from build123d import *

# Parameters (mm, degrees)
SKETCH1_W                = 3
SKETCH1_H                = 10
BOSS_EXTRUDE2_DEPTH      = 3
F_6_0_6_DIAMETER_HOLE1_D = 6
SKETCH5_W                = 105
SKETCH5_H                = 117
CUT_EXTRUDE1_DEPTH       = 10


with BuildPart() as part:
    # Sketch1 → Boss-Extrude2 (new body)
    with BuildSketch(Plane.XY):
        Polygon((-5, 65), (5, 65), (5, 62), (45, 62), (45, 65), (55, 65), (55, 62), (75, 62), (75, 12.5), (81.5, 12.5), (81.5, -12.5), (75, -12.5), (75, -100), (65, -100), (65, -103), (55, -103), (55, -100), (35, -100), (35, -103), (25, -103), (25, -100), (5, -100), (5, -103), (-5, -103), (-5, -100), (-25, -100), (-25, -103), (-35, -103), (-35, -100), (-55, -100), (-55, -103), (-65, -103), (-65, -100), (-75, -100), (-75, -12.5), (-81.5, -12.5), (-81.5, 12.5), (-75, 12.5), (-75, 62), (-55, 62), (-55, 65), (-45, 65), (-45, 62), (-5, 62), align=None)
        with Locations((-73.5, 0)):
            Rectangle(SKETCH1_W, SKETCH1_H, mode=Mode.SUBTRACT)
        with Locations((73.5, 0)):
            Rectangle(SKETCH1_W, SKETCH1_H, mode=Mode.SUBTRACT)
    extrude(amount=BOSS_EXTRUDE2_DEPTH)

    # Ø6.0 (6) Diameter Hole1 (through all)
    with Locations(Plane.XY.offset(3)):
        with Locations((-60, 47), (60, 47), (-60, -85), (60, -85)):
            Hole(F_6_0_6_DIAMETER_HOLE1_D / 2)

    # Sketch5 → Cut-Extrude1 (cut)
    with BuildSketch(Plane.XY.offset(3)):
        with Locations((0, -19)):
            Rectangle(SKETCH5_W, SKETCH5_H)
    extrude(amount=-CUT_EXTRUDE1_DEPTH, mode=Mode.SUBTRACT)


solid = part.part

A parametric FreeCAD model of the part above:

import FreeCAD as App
import Part
import Sketcher

V = App.Vector

doc = App.newDocument("Part")
body = doc.addObject("PartDesign::Body", "Body")

# Sketch on XY plane
sketch1 = body.newObject("Sketcher::SketchObject", "Sketch")
sketch1.AttachmentSupport = (doc.getObject("XY_Plane"), [""])
sketch1.MapMode = "FlatFace"
sketch1.addGeometry([
    Part.LineSegment(V(5, 65, 0), V(-5, 65, 0)),  # 0
    Part.LineSegment(V(-5, 65, 0), V(-5, 62, 0)),  # 1
    Part.LineSegment(V(-5, 62, 0), V(-45, 62, 0)),  # 2
    Part.LineSegment(V(-45, 62, 0), V(-45, 65, 0)),  # 3
    Part.LineSegment(V(-45, 65, 0), V(-55, 65, 0)),  # 4
    Part.LineSegment(V(-55, 65, 0), V(-55, 62, 0)),  # 5
    Part.LineSegment(V(-55, 62, 0), V(-75, 62, 0)),  # 6
    Part.LineSegment(V(-75, 62, 0), V(-75, 12.5, 0)),  # 7
    Part.LineSegment(V(-75, 12.5, 0), V(-81.5, 12.5, 0)),  # 8
    Part.LineSegment(V(-81.5, 12.5, 0), V(-81.5, -12.5, 0)),  # 9
    Part.LineSegment(V(-81.5, -12.5, 0), V(-75, -12.5, 0)),  # 10
    Part.LineSegment(V(-75, -12.5, 0), V(-75, -100, 0)),  # 11
    Part.LineSegment(V(-75, -100, 0), V(-65, -100, 0)),  # 12
    Part.LineSegment(V(-65, -100, 0), V(-65, -103, 0)),  # 13
    Part.LineSegment(V(-65, -103, 0), V(-55, -103, 0)),  # 14
    Part.LineSegment(V(-55, -103, 0), V(-55, -100, 0)),  # 15
    Part.LineSegment(V(-55, -100, 0), V(-35, -100, 0)),  # 16
    Part.LineSegment(V(-35, -100, 0), V(-35, -103, 0)),  # 17
    Part.LineSegment(V(-35, -103, 0), V(-25, -103, 0)),  # 18
    Part.LineSegment(V(-25, -103, 0), V(-25, -100, 0)),  # 19
    Part.LineSegment(V(-25, -100, 0), V(-5, -100, 0)),  # 20
    Part.LineSegment(V(-5, -100, 0), V(-5, -103, 0)),  # 21
    Part.LineSegment(V(-5, -103, 0), V(5, -103, 0)),  # 22
    Part.LineSegment(V(5, -103, 0), V(5, -100, 0)),  # 23
    Part.LineSegment(V(5, -100, 0), V(25, -100, 0)),  # 24
    Part.LineSegment(V(25, -100, 0), V(25, -103, 0)),  # 25
    Part.LineSegment(V(25, -103, 0), V(35, -103, 0)),  # 26
    Part.LineSegment(V(35, -103, 0), V(35, -100, 0)),  # 27
    Part.LineSegment(V(35, -100, 0), V(55, -100, 0)),  # 28
    Part.LineSegment(V(55, -100, 0), V(55, -103, 0)),  # 29
    Part.LineSegment(V(55, -103, 0), V(65, -103, 0)),  # 30
    Part.LineSegment(V(65, -103, 0), V(65, -100, 0)),  # 31
    Part.LineSegment(V(65, -100, 0), V(75, -100, 0)),  # 32
    Part.LineSegment(V(75, -100, 0), V(75, -12.5, 0)),  # 33
    Part.LineSegment(V(75, -12.5, 0), V(81.5, -12.5, 0)),  # 34
    Part.LineSegment(V(81.5, -12.5, 0), V(81.5, 12.5, 0)),  # 35
    Part.LineSegment(V(81.5, 12.5, 0), V(75, 12.5, 0)),  # 36
    Part.LineSegment(V(75, 12.5, 0), V(75, 62, 0)),  # 37
    Part.LineSegment(V(75, 62, 0), V(55, 62, 0)),  # 38
    Part.LineSegment(V(55, 62, 0), V(55, 65, 0)),  # 39
    Part.LineSegment(V(55, 65, 0), V(45, 65, 0)),  # 40
    Part.LineSegment(V(45, 65, 0), V(45, 62, 0)),  # 41
    Part.LineSegment(V(45, 62, 0), V(5, 62, 0)),  # 42
    Part.LineSegment(V(5, 62, 0), V(5, 65, 0)),  # 43
    Part.LineSegment(V(72, -5, 0), V(72, 5, 0)),  # 44
    Part.LineSegment(V(72, 5, 0), V(75, 5, 0)),  # 45
    Part.LineSegment(V(75, 5, 0), V(75, -5, 0)),  # 46
    Part.LineSegment(V(75, -5, 0), V(72, -5, 0)),  # 47
    Part.LineSegment(V(-75, -5, 0), V(-75, 5, 0)),  # 48
    Part.LineSegment(V(-75, 5, 0), V(-72, 5, 0)),  # 49
    Part.LineSegment(V(-72, 5, 0), V(-72, -5, 0)),  # 50
    Part.LineSegment(V(-72, -5, 0), V(-75, -5, 0)),  # 51
], False)
sketch1.addConstraint([
    Sketcher.Constraint("Coincident", 0, 2, 1, 1),
    Sketcher.Constraint("Coincident", 1, 2, 2, 1),
    Sketcher.Constraint("Coincident", 2, 2, 3, 1),
    Sketcher.Constraint("Coincident", 3, 2, 4, 1),
    Sketcher.Constraint("Coincident", 4, 2, 5, 1),
    Sketcher.Constraint("Coincident", 5, 2, 6, 1),
    Sketcher.Constraint("Coincident", 6, 2, 7, 1),
    Sketcher.Constraint("Coincident", 7, 2, 8, 1),
    Sketcher.Constraint("Coincident", 8, 2, 9, 1),
    Sketcher.Constraint("Coincident", 9, 2, 10, 1),
    Sketcher.Constraint("Coincident", 10, 2, 11, 1),
    Sketcher.Constraint("Coincident", 11, 2, 12, 1),
    Sketcher.Constraint("Coincident", 12, 2, 13, 1),
    Sketcher.Constraint("Coincident", 13, 2, 14, 1),
    Sketcher.Constraint("Coincident", 14, 2, 15, 1),
    Sketcher.Constraint("Coincident", 15, 2, 16, 1),
    Sketcher.Constraint("Coincident", 16, 2, 17, 1),
    Sketcher.Constraint("Coincident", 17, 2, 18, 1),
    Sketcher.Constraint("Coincident", 18, 2, 19, 1),
    Sketcher.Constraint("Coincident", 19, 2, 20, 1),
    Sketcher.Constraint("Coincident", 20, 2, 21, 1),
    Sketcher.Constraint("Coincident", 21, 2, 22, 1),
    Sketcher.Constraint("Coincident", 22, 2, 23, 1),
    Sketcher.Constraint("Coincident", 23, 2, 24, 1),
    Sketcher.Constraint("Coincident", 24, 2, 25, 1),
    Sketcher.Constraint("Coincident", 25, 2, 26, 1),
    Sketcher.Constraint("Coincident", 26, 2, 27, 1),
    Sketcher.Constraint("Coincident", 27, 2, 28, 1),
    Sketcher.Constraint("Coincident", 28, 2, 29, 1),
    Sketcher.Constraint("Coincident", 29, 2, 30, 1),
    Sketcher.Constraint("Coincident", 30, 2, 31, 1),
    Sketcher.Constraint("Coincident", 31, 2, 32, 1),
    Sketcher.Constraint("Coincident", 32, 2, 33, 1),
    Sketcher.Constraint("Coincident", 33, 2, 34, 1),
    Sketcher.Constraint("Coincident", 34, 2, 35, 1),
    Sketcher.Constraint("Coincident", 35, 2, 36, 1),
    Sketcher.Constraint("Coincident", 36, 2, 37, 1),
    Sketcher.Constraint("Coincident", 37, 2, 38, 1),
    Sketcher.Constraint("Coincident", 38, 2, 39, 1),
    Sketcher.Constraint("Coincident", 39, 2, 40, 1),
    Sketcher.Constraint("Coincident", 40, 2, 41, 1),
    Sketcher.Constraint("Coincident", 41, 2, 42, 1),
    Sketcher.Constraint("Coincident", 42, 2, 43, 1),
    Sketcher.Constraint("Coincident", 43, 2, 0, 1),
    Sketcher.Constraint("Coincident", 44, 2, 45, 1),
    Sketcher.Constraint("Coincident", 45, 2, 46, 1),
    Sketcher.Constraint("Coincident", 46, 2, 47, 1),
    Sketcher.Constraint("Coincident", 47, 2, 44, 1),
    Sketcher.Constraint("Coincident", 48, 2, 49, 1),
    Sketcher.Constraint("Coincident", 49, 2, 50, 1),
    Sketcher.Constraint("Coincident", 50, 2, 51, 1),
    Sketcher.Constraint("Coincident", 51, 2, 48, 1),
    Sketcher.Constraint("Horizontal", 0),
    Sketcher.Constraint("Vertical", 1),
    Sketcher.Constraint("Horizontal", 2),
    Sketcher.Constraint("Vertical", 3),
    Sketcher.Constraint("Horizontal", 4),
    Sketcher.Constraint("Vertical", 5),
    Sketcher.Constraint("Horizontal", 6),
    Sketcher.Constraint("Vertical", 7),
    Sketcher.Constraint("Horizontal", 8),
    Sketcher.Constraint("Vertical", 9),
    Sketcher.Constraint("Horizontal", 10),
    Sketcher.Constraint("Vertical", 11),
    Sketcher.Constraint("Horizontal", 12),
    Sketcher.Constraint("Vertical", 13),
    Sketcher.Constraint("Horizontal", 14),
    Sketcher.Constraint("Vertical", 15),
    Sketcher.Constraint("Horizontal", 16),
    Sketcher.Constraint("Vertical", 17),
    Sketcher.Constraint("Horizontal", 18),
    Sketcher.Constraint("Vertical", 19),
    Sketcher.Constraint("Horizontal", 20),
    Sketcher.Constraint("Vertical", 21),
    Sketcher.Constraint("Horizontal", 22),
    Sketcher.Constraint("Vertical", 23),
    Sketcher.Constraint("Horizontal", 24),
    Sketcher.Constraint("Vertical", 25),
    Sketcher.Constraint("Horizontal", 26),
    Sketcher.Constraint("Vertical", 27),
    Sketcher.Constraint("Horizontal", 28),
    Sketcher.Constraint("Vertical", 29),
    Sketcher.Constraint("Horizontal", 30),
    Sketcher.Constraint("Vertical", 31),
    Sketcher.Constraint("Horizontal", 32),
    Sketcher.Constraint("Vertical", 33),
    Sketcher.Constraint("Horizontal", 34),
    Sketcher.Constraint("Vertical", 35),
    Sketcher.Constraint("Horizontal", 36),
    Sketcher.Constraint("Vertical", 37),
    Sketcher.Constraint("Horizontal", 38),
    Sketcher.Constraint("Vertical", 39),
    Sketcher.Constraint("Horizontal", 40),
    Sketcher.Constraint("Vertical", 41),
    Sketcher.Constraint("Horizontal", 42),
    Sketcher.Constraint("Vertical", 43),
    Sketcher.Constraint("Vertical", 44),
    Sketcher.Constraint("Horizontal", 45),
    Sketcher.Constraint("Vertical", 46),
    Sketcher.Constraint("Horizontal", 47),
    Sketcher.Constraint("Vertical", 48),
    Sketcher.Constraint("Horizontal", 49),
    Sketcher.Constraint("Vertical", 50),
    Sketcher.Constraint("Horizontal", 51),
    Sketcher.Constraint("Symmetric", 7, 2, 33, 2, -1, 1),
    Sketcher.Constraint("Symmetric", 9, 2, 35, 2, -1, 1),
    Sketcher.Constraint("Symmetric", 46, 2, 48, 2, -1, 1),
    Sketcher.Constraint("Symmetric", 44, 2, 50, 2, -1, 1),
    Sketcher.Constraint("Symmetric", 20, 2, 23, 2, -2),
    Sketcher.Constraint("Symmetric", 18, 2, 25, 2, -2),
    Sketcher.Constraint("Symmetric", 16, 2, 27, 2, -2),
    Sketcher.Constraint("Symmetric", 14, 2, 29, 2, -2),
    Sketcher.Constraint("Symmetric", 12, 2, 31, 2, -2),
    Sketcher.Constraint("Symmetric", 10, 2, 33, 2, -2),
    Sketcher.Constraint("Symmetric", 6, 2, 37, 2, -2),
    Sketcher.Constraint("Symmetric", 4, 2, 39, 2, -2),
    Sketcher.Constraint("Symmetric", 2, 2, 41, 2, -2),
    Sketcher.Constraint("Horizontal", 0, 2, 3, 2),
    Sketcher.Constraint("Horizontal", 2, 2, 5, 2),
    Sketcher.Constraint("Horizontal", 12, 2, 15, 2),
    Sketcher.Constraint("Horizontal", 14, 2, 17, 2),
    Sketcher.Constraint("Horizontal", 16, 2, 19, 2),
    Sketcher.Constraint("Horizontal", 18, 2, 21, 2),
    Sketcher.Constraint("Horizontal", 45, 2, 48, 2),
    Sketcher.Constraint("Vertical", 5, 2, 14, 2),
    Sketcher.Constraint("Vertical", 1, 2, 20, 2),
    Sketcher.Constraint("Vertical", 23, 2, 42, 2),
    Sketcher.Constraint("Vertical", 37, 2, 45, 2),
    Sketcher.Constraint("Equal", 0, 4),
    Sketcher.Constraint("Equal", 4, 12),
    Sketcher.Constraint("Equal", 12, 14),
    Sketcher.Constraint("Equal", 6, 16),
    Sketcher.Constraint("Equal", 14, 18),
    Sketcher.Constraint("Equal", 16, 20),
    Sketcher.Constraint("Equal", 51, 1),
    Sketcher.Constraint("Equal", 5, 13),
    Sketcher.Constraint("Equal", 40, 44),
    Sketcher.Constraint("DistanceX", 0, 2, 0, 1, 10.0),
    Sketcher.Constraint("DistanceX", 45, 1, 45, 2, 3.0),
    Sketcher.Constraint("DistanceY", 9, 2, 9, 1, 25.0),
    Sketcher.Constraint("DistanceX", 8, 2, 8, 1, 6.5),
    Sketcher.Constraint("DistanceY", 7, 2, 7, 1, 49.5),
    Sketcher.Constraint("DistanceY", 11, 2, 11, 1, 87.5),
])
pad1 = body.newObject("PartDesign::Pad", "Pad")
pad1.Profile = sketch1
pad1.Length = 3

# Sketch on XY plane
sketch2 = body.newObject("Sketcher::SketchObject", "Sketch001")
sketch2.AttachmentSupport = (doc.getObject("XY_Plane"), [""])
sketch2.MapMode = "FlatFace"
sketch2.AttachmentOffset = App.Placement(V(0, 0, 3), App.Rotation())
sketch2.addGeometry([
    Part.Circle(V(-60, 47, 0), V(0, 0, 1), 3),
    Part.Circle(V(60, 47, 0), V(0, 0, 1), 3),
    Part.Circle(V(-60, -85, 0), V(0, 0, 1), 3),
    Part.Circle(V(60, -85, 0), V(0, 0, 1), 3),
], False)
sketch2.addConstraint([
    Sketcher.Constraint("Equal", 0, 1),
    Sketcher.Constraint("Equal", 1, 2),
    Sketcher.Constraint("Equal", 2, 3),
    Sketcher.Constraint("Symmetric", 0, 3, 1, 3, -2),
    Sketcher.Constraint("Symmetric", 2, 3, 3, 3, -2),
    Sketcher.Constraint("Vertical", 0, 3, 2, 3),
    Sketcher.Constraint("Diameter", 0, 6.0),
    Sketcher.Constraint("DistanceX", 0, 3, -1, 1, 60.0),
    Sketcher.Constraint("DistanceY", -1, 1, 0, 3, 47.0),
    Sketcher.Constraint("DistanceY", 2, 3, -1, 1, 85.0),
])
doc.recompute()
hole = body.newObject("PartDesign::Hole", "Hole")
hole.Profile = sketch2
hole.ThreadType = "None"
hole.Diameter = 6
hole.DepthType = "ThroughAll"

# Sketch on XY plane
sketch3 = body.newObject("Sketcher::SketchObject", "Sketch002")
sketch3.AttachmentSupport = (doc.getObject("XY_Plane"), [""])
sketch3.MapMode = "FlatFace"
sketch3.AttachmentOffset = App.Placement(V(0, 0, 3), App.Rotation())
sketch3.addGeometry([
    Part.LineSegment(V(-52, 40, 0), V(-52, -78, 0)),
    Part.LineSegment(V(-52, -78, 0), V(52, -78, 0)),
    Part.LineSegment(V(52, -78, 0), V(52, 40, 0)),
    Part.LineSegment(V(52, 40, 0), V(-52, 40, 0)),
], False)
sketch3.addConstraint([
    Sketcher.Constraint("Coincident", 0, 2, 1, 1),
    Sketcher.Constraint("Coincident", 1, 2, 2, 1),
    Sketcher.Constraint("Coincident", 2, 2, 3, 1),
    Sketcher.Constraint("Coincident", 3, 2, 0, 1),
    Sketcher.Constraint("Vertical", 0),
    Sketcher.Constraint("Horizontal", 1),
    Sketcher.Constraint("Vertical", 2),
    Sketcher.Constraint("Horizontal", 3),
    Sketcher.Constraint("DistanceX", 1, 1, 1, 2, 105.0),
    Sketcher.Constraint("DistanceY", 0, 2, 0, 1, 117.0),
    Sketcher.Constraint("DistanceX", 0, 2, -1, 1, 52.5),
    Sketcher.Constraint("DistanceY", 0, 2, -1, 1, 77.5),
])
pocket1 = body.newObject("PartDesign::Pocket", "Pocket")
pocket1.Profile = sketch3
pocket1.Length = 10

doc.recompute()
